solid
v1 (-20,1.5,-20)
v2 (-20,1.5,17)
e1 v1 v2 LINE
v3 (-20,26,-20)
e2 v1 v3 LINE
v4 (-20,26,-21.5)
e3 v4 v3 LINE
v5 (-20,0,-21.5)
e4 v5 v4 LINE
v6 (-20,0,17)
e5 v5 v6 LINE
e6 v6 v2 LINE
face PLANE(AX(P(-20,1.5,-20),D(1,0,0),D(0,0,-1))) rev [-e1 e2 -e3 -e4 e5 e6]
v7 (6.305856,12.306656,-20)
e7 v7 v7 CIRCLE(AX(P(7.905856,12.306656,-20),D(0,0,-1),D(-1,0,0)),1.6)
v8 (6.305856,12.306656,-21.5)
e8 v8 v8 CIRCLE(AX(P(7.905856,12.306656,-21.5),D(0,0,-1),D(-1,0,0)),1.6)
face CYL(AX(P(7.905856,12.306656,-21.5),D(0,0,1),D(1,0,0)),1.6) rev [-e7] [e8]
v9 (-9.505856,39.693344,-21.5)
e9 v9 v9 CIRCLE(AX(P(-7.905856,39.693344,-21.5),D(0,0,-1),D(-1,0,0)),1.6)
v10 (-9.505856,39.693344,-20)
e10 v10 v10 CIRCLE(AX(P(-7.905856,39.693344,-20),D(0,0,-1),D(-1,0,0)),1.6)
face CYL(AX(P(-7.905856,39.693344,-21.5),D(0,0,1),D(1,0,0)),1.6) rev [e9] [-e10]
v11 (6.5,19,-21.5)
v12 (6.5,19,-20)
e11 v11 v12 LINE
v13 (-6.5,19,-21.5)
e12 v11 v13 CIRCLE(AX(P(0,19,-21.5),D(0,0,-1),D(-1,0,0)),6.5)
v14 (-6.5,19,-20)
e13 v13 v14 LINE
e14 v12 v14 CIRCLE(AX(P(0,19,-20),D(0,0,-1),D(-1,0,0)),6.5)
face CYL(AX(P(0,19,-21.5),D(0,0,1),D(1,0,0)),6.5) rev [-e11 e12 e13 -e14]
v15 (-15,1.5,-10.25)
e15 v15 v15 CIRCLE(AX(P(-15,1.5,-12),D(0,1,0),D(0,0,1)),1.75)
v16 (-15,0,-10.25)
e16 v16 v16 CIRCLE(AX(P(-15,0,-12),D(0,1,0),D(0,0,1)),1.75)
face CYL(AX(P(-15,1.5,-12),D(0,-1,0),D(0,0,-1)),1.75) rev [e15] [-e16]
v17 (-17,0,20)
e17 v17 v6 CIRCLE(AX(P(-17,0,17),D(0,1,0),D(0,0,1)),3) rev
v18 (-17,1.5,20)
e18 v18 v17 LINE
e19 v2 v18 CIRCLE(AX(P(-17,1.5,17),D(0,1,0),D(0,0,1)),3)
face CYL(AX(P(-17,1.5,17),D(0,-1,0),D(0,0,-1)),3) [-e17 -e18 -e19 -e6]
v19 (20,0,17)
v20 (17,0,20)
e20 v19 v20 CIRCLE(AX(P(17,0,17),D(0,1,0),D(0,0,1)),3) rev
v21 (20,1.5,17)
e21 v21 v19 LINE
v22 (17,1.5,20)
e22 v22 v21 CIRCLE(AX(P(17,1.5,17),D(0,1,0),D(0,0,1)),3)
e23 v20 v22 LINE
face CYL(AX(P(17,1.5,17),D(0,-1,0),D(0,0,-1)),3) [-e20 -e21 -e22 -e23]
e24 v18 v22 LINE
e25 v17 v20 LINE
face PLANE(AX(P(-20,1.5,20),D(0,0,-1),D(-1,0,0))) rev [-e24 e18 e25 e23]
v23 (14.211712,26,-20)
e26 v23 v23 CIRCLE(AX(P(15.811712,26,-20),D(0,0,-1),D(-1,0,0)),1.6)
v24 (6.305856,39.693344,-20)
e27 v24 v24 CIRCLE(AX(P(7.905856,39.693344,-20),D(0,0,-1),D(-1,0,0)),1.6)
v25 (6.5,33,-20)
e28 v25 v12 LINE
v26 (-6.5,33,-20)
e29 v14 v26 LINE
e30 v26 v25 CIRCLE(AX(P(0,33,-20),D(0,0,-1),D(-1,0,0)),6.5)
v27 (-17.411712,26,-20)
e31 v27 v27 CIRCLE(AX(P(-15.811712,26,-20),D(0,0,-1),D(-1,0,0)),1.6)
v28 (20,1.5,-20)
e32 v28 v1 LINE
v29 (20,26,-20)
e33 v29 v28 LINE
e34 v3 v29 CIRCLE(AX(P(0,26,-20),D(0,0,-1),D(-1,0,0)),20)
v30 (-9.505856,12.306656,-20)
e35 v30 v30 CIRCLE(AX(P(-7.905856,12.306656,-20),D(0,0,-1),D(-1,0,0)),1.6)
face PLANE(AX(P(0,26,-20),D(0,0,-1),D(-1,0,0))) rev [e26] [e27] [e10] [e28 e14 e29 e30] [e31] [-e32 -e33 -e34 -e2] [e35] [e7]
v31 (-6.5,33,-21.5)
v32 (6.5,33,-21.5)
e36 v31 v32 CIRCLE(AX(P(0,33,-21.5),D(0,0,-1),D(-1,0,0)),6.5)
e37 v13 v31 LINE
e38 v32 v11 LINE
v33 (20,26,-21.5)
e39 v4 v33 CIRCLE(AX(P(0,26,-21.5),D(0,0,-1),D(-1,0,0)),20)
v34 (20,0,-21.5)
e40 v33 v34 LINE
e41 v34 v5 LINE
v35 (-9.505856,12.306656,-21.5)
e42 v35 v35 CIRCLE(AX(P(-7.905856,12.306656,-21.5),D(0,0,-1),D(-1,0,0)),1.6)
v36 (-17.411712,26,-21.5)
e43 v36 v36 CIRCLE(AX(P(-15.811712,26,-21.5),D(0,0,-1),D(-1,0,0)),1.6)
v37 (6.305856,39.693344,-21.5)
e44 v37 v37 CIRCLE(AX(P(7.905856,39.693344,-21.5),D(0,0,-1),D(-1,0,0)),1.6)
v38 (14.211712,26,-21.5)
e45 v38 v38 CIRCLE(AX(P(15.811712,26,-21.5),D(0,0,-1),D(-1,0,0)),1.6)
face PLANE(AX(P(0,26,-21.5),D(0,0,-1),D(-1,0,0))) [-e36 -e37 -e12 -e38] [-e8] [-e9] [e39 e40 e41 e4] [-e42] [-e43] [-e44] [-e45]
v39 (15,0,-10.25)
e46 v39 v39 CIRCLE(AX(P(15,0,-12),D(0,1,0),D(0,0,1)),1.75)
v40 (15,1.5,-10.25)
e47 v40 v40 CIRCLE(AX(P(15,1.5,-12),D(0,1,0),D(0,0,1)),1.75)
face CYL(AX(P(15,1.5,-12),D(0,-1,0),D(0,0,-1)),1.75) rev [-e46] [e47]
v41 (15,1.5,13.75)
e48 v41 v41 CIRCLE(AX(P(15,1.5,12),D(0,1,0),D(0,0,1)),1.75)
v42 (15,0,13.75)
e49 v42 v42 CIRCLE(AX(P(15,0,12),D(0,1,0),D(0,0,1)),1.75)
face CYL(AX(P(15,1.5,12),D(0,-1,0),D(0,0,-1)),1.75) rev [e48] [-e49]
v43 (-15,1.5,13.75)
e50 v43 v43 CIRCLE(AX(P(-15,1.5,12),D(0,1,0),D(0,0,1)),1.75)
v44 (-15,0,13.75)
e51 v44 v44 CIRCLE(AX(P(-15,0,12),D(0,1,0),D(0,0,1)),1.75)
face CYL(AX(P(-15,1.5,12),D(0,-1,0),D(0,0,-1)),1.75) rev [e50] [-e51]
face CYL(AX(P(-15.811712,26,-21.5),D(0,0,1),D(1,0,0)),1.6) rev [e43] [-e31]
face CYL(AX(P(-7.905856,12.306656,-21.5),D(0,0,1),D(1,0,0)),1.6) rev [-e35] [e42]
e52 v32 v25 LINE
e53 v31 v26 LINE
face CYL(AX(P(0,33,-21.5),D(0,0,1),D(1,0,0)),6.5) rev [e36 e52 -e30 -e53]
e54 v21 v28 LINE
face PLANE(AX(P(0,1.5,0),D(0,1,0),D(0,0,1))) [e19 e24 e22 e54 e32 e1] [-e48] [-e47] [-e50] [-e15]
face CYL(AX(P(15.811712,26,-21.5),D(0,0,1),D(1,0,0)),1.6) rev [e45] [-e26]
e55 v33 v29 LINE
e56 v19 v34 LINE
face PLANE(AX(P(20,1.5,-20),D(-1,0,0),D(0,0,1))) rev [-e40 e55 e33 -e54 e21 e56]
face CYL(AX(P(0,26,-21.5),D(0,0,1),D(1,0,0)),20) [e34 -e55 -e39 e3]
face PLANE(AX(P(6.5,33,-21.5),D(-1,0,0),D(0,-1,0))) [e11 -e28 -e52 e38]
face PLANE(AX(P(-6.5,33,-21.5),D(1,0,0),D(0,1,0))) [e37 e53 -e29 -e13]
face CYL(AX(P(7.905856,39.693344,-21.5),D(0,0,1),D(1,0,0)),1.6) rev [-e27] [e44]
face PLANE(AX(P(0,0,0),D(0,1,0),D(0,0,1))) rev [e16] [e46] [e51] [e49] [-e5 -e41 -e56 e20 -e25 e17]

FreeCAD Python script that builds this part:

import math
import FreeCAD as App
import Part
import Sketcher
Q = App.Units.Quantity


def edges_at(feature, points):
    """Names of the edges that pass closest to the given points."""
    edges = feature.Shape.Edges
    near = lambda p: min(range(len(edges)), key=lambda i: edges[i].distToShape(Part.Vertex(*p))[0])
    return sorted({f"Edge{near(p) + 1}" for p in points})

doc = App.newDocument("Part")
params = doc.addObject("Spreadsheet::Sheet", "Params")
for row, (alias, value) in enumerate([
    ("sketch1_diameter", "3.5 mm"),
    ("sketch1_width", "40 mm"),
    ("pad1_length", "1.5 mm"),
    ("fillet_radius", "3 mm"),
    ("sketch2_radius", "20 mm"),
    ("sketch2_diameter", "3.2 mm"),
    ("sketch2_radius2", "6.5 mm"),
    ("sketch2_height", "26 mm"),
    ("sketch2_height2", "14 mm"),
    ("pad2_length", "1.5 mm"),
], start=1):
    params.set(f"A{row}", alias)
    params.set(f"B{row}", "=" + value)
    params.setAlias(f"B{row}", alias)

body = doc.addObject("PartDesign::Body", "Body")

sketch1 = body.newObject("Sketcher::SketchObject", "Sketch")
sketch1.AttachmentSupport = (doc.getObject("XZ_Plane"), [""])
sketch1.MapMode = "FlatFace"
sketch1.addGeometry(Part.LineSegment(App.Vector(-20, -20, 0), App.Vector(-20, 20, 0)), False)
sketch1.addGeometry(Part.LineSegment(App.Vector(-20, 20, 0), App.Vector(20, 20, 0)), False)
sketch1.addGeometry(Part.LineSegment(App.Vector(20, 20, 0), App.Vector(20, -20, 0)), False)
sketch1.addGeometry(Part.LineSegment(App.Vector(20, -20, 0), App.Vector(-20, -20, 0)), False)
sketch1.addGeometry(Part.Circle(App.Vector(-15, 12, 0), App.Vector(0, 0, 1), 1.8), False)
sketch1.addGeometry(Part.Circle(App.Vector(15, 12, 0), App.Vector(0, 0, 1), 1.8), False)
sketch1.addGeometry(Part.Circle(App.Vector(-15, -12, 0), App.Vector(0, 0, 1), 1.8), False)
sketch1.addGeometry(Part.Circle(App.Vector(15, -12, 0), App.Vector(0, 0, 1), 1.8), False)
sketch1.addConstraint(Sketcher.Constraint("Coincident", 0, 2, 1, 1))
sketch1.addConstraint(Sketcher.Constraint("Coincident", 1, 2, 2, 1))
sketch1.addConstraint(Sketcher.Constraint("Coincident", 2, 2, 3, 1))
sketch1.addConstraint(Sketcher.Constraint("Coincident", 3, 2, 0, 1))
sketch1.addConstraint(Sketcher.Constraint("Vertical", 0))
sketch1.addConstraint(Sketcher.Constraint("Horizontal", 1))
sketch1.addConstraint(Sketcher.Constraint("Vertical", 2))
sketch1.addConstraint(Sketcher.Constraint("Horizontal", 3))
sketch1.addConstraint(Sketcher.Constraint("Equal", 4, 5))
sketch1.addConstraint(Sketcher.Constraint("Equal", 5, 6))
sketch1.addConstraint(Sketcher.Constraint("Equal", 6, 7))
sketch1.addConstraint(Sketcher.Constraint("Symmetric", 5, 3, 6, 3, -1, 1))
sketch1.addConstraint(Sketcher.Constraint("Symmetric", 4, 3, 7, 3, -1, 1))
sketch1.addConstraint(Sketcher.Constraint("Symmetric", 0, 2, 2, 2, -1, 1))
sketch1.addConstraint(Sketcher.Constraint("Symmetric", 4, 3, 5, 3, -2))
sketch1.addConstraint(Sketcher.Constraint("Equal", 3, 0))
sketch1.addConstraint(Sketcher.Constraint("Diameter", 4, Q("3.5 mm")))
sketch1.addConstraint(Sketcher.Constraint("DistanceX", 1, 1, 1, 2, Q("40 mm")))
sketch1.addConstraint(Sketcher.Constraint("DistanceX", 4, 3, -1, 1, Q("15 mm")))
sketch1.addConstraint(Sketcher.Constraint("DistanceY", -1, 1, 4, 3, Q("12 mm")))
sketch1.setExpression("Constraints[16]", "Params.sketch1_diameter")
sketch1.setExpression("Constraints[17]", "Params.sketch1_width")
pad1 = body.newObject("PartDesign::Pad", "Pad")
pad1.Profile = sketch1
pad1.setExpression("Length", "Params.pad1_length")
pad1.Reversed = True
doc.recompute()

fillet = body.newObject("PartDesign::Fillet", "Fillet")
fillet.Base = (pad1, edges_at(pad1, [(20, 0.75, 20), (-20, 0.75, 20)]))
fillet.setExpression("Radius", "Params.fillet_radius")

sketch2 = body.newObject("Sketcher::SketchObject", "Sketch001")
sketch2.AttachmentSupport = (doc.getObject("XY_Plane"), [""])
sketch2.MapMode = "FlatFace"
sketch2.AttachmentOffset = App.Placement(App.Vector(0, 0, -20), App.Rotation())
sketch2.addGeometry(Part.LineSegment(App.Vector(20, 0, 0), App.Vector(-20, 0, 0)), False)
sketch2.addGeometry(Part.LineSegment(App.Vector(-20, 0, 0), App.Vector(-20, 26, 0)), False)
sketch2.addGeometry(Part.ArcOfCircle(Part.Circle(App.Vector(0, 26, 0), App.Vector(0, 0, 1), 20), math.radians(0), math.radians(180)), False)
sketch2.addGeometry(Part.LineSegment(App.Vector(20, 26, 0), App.Vector(20, 0, 0)), False)
sketch2.addGeometry(Part.Circle(App.Vector(7.9, 12.3, 0), App.Vector(0, 0, 1), 1.6), False)
sketch2.addGeometry(Part.Circle(App.Vector(-7.9, 12.3, 0), App.Vector(0, 0, 1), 1.6), False)
sketch2.addGeometry(Part.Circle(App.Vector(15.8, 26, 0), App.Vector(0, 0, 1), 1.6), False)
sketch2.addGeometry(Part.Circle(App.Vector(7.9, 39.7, 0), App.Vector(0, 0, 1), 1.6), False)
sketch2.addGeometry(Part.LineSegment(App.Vector(6.5, 19, 0), App.Vector(6.5, 33, 0)), False)
sketch2.addGeometry(Part.ArcOfCircle(Part.Circle(App.Vector(0, 33, 0), App.Vector(0, 0, 1), 6.5), math.radians(0), math.radians(180)), False)
sketch2.addGeometry(Part.LineSegment(App.Vector(-6.5, 33, 0), App.Vector(-6.5, 19, 0)), False)
sketch2.addGeometry(Part.ArcOfCircle(Part.Circle(App.Vector(0, 19, 0), App.Vector(0, 0, 1), 6.5), math.radians(180), math.radians(360)), False)
sketch2.addGeometry(Part.Circle(App.Vector(-15.8, 26, 0), App.Vector(0, 0, 1), 1.6), False)
sketch2.addGeometry(Part.Circle(App.Vector(-7.9, 39.7, 0), App.Vector(0, 0, 1), 1.6), False)
sketch2.addConstraint(Sketcher.Constraint("Coincident", 0, 2, 1, 1))
sketch2.addConstraint(Sketcher.Constraint("Tangent", 1, 2, 2, 2))
sketch2.addConstraint(Sketcher.Constraint("Tangent", 2, 1, 3, 1))
sketch2.addConstraint(Sketcher.Constraint("Coincident", 3, 2, 0, 1))
sketch2.addConstraint(Sketcher.Constraint("Tangent", 8, 2, 9, 1))
sketch2.addConstraint(Sketcher.Constraint("Tangent", 9, 2, 10, 1))
sketch2.addConstraint(Sketcher.Constraint("Tangent", 10, 2, 11, 1))
sketch2.addConstraint(Sketcher.Constraint("Tangent", 11, 2, 8, 1))
sketch2.addConstraint(Sketcher.Constraint("Horizontal", 0))
sketch2.addConstraint(Sketcher.Constraint("Vertical", 1))
sketch2.addConstraint(Sketcher.Constraint("Vertical", 3))
sketch2.addConstraint(Sketcher.Constraint("Vertical", 8))
sketch2.addConstraint(Sketcher.Constraint("Vertical", 10))
sketch2.addConstraint(Sketcher.Constraint("Equal", 4, 5))
sketch2.addConstraint(Sketcher.Constraint("Equal", 5, 6))
sketch2.addConstraint(Sketcher.Constraint("Equal", 6, 7))
sketch2.addConstraint(Sketcher.Constraint("Equal", 7, 12))
sketch2.addConstraint(Sketcher.Constraint("Equal", 12, 13))
sketch2.addConstraint(Sketcher.Constraint("Symmetric", 0, 2, 3, 2, -1, 1))
sketch2.addConstraint(Sketcher.Constraint("Symmetric", 4, 3, 5, 3, -2))
sketch2.addConstraint(Sketcher.Constraint("Symmetric", 6, 3, 12, 3, -2))
sketch2.addConstraint(Sketcher.Constraint("Symmetric", 7, 3, 13, 3, -2))
sketch2.addConstraint(Sketcher.Constraint("PointOnObject", 9, 3, -2))
sketch2.addConstraint(Sketcher.Constraint("Horizontal", 2, 3, 6, 3))
sketch2.addConstraint(Sketcher.Constraint("Vertical", 4, 3, 7, 3))
sketch2.addConstraint(Sketcher.Constraint("Radius", 2, Q("20 mm")))
sketch2.addConstraint(Sketcher.Constraint("Diameter", 4, Q("3.2 mm")))
sketch2.addConstraint(Sketcher.Constraint("Radius", 9, Q("6.5 mm")))
sketch2.addConstraint(Sketcher.Constraint("DistanceY", 1, 1, 1, 2, Q("26 mm")))
sketch2.addConstraint(Sketcher.Constraint("DistanceY", 8, 1, 8, 2, Q("14 mm")))
sketch2.addConstraint(Sketcher.Constraint("DistanceY", -1, 1, 9, 3, Q("33 mm")))
sketch2.addConstraint(Sketcher.Constraint("DistanceX", -1, 1, 6, 3, Q("15.811712 mm")))
sketch2.addConstraint(Sketcher.Constraint("DistanceX", 5, 3, 4, 3, Q("15.811712 mm")))
sketch2.addConstraint(Sketcher.Constraint("DistanceY", -1, 1, 4, 3, Q("12.306656 mm")))
sketch2.addConstraint(Sketcher.Constraint("DistanceY", -1, 1, 7, 3, Q("39.693344 mm")))
sketch2.setExpression("Constraints[25]", "Params.sketch2_radius")
sketch2.setExpression("Constraints[26]", "Params.sketch2_diameter")
sketch2.setExpression("Constraints[27]", "Params.sketch2_radius2")
sketch2.setExpression("Constraints[28]", "Params.sketch2_height")
sketch2.setExpression("Constraints[29]", "Params.sketch2_height2")
pad2 = body.newObject("PartDesign::Pad", "Pad001")
pad2.Profile = sketch2
pad2.setExpression("Length", "Params.pad2_length")
pad2.Reversed = True

doc.recompute()
